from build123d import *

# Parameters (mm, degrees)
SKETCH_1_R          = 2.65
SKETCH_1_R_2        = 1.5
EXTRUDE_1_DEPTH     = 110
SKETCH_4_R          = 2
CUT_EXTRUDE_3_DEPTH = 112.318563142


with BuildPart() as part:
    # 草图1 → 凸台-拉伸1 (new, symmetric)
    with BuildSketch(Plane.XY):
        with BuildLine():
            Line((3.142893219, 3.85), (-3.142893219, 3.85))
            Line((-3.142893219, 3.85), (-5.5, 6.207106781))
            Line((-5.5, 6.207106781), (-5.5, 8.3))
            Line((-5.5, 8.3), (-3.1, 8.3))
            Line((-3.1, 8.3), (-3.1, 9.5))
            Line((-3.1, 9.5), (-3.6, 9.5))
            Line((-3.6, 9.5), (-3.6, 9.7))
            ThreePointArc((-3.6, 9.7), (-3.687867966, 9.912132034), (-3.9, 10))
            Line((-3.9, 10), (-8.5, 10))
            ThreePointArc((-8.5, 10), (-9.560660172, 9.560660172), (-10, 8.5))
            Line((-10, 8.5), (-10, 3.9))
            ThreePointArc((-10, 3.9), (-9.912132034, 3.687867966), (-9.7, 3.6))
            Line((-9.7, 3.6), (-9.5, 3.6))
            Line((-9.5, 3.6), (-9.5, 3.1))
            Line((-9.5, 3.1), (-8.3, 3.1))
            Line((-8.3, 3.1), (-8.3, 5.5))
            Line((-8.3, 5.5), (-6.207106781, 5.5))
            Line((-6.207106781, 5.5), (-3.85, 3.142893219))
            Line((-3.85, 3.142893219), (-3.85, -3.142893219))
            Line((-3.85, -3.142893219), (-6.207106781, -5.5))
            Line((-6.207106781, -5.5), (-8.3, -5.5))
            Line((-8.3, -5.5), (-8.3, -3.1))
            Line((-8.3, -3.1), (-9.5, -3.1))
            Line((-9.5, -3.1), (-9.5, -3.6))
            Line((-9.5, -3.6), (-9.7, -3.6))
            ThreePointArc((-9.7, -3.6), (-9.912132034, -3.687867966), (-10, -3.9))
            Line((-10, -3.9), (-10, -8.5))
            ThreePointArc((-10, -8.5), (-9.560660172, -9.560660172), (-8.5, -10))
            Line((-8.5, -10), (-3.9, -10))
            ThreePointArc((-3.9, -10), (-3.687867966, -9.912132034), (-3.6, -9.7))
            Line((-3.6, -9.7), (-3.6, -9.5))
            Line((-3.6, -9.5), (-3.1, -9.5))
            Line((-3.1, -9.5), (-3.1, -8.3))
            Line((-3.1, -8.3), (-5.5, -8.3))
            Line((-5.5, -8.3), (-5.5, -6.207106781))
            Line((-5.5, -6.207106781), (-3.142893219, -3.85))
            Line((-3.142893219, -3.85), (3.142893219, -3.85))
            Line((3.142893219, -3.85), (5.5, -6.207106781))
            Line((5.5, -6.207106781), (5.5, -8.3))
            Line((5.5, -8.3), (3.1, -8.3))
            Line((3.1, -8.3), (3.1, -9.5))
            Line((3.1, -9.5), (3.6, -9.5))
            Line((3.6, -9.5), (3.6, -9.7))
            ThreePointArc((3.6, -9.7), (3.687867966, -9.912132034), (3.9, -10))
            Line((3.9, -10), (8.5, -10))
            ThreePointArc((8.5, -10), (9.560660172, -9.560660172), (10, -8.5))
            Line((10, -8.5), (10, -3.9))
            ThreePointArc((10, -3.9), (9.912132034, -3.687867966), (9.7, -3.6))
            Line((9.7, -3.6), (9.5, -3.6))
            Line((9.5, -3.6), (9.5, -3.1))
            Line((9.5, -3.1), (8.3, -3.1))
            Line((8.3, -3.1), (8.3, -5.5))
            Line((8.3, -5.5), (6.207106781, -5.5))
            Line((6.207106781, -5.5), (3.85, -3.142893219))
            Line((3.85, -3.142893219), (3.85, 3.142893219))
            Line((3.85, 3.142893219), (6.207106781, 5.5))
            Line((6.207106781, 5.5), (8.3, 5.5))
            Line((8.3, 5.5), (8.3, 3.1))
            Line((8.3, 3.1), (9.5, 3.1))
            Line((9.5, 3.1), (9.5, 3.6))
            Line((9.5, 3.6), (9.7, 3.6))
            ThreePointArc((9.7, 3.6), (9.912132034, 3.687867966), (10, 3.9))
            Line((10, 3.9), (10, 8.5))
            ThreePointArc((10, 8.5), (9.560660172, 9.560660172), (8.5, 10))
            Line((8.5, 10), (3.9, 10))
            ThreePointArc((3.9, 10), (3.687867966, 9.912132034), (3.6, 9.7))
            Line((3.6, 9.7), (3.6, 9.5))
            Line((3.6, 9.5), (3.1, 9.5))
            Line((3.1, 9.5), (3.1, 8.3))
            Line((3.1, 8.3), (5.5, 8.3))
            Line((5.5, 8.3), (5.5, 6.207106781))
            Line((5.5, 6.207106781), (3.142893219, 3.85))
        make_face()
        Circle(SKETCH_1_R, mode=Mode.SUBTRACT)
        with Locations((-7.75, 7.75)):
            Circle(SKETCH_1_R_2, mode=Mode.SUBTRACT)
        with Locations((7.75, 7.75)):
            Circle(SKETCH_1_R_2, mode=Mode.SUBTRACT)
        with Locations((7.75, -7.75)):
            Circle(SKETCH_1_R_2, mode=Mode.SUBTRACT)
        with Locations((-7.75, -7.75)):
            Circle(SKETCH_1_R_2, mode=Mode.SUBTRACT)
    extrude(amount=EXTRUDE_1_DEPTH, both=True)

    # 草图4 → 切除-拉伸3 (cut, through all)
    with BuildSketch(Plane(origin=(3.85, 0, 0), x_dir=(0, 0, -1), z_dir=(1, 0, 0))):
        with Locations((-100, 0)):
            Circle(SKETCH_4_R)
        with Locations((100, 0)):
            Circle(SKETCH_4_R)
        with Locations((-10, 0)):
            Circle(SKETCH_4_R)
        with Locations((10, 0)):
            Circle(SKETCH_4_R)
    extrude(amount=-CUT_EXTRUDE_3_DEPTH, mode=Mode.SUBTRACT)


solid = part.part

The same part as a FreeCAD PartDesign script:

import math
import FreeCAD as App
import Part
import Sketcher
Q = App.Units.Quantity

doc = App.newDocument("Part")
body = doc.addObject("PartDesign::Body", "Body")

# Sketch on XY plane
sketch1 = body.newObject("Sketcher::SketchObject", "Sketch")
sketch1.AttachmentSupport = (doc.getObject("XY_Plane"), [""])
sketch1.MapMode = "FlatFace"
sketch1.addGeometry([
    Part.LineSegment(App.Vector(3.14, 3.85, 0), App.Vector(-3.14, 3.85, 0)),  # 0
    Part.LineSegment(App.Vector(-3.14, 3.85, 0), App.Vector(-5.5, 6.21, 0)),  # 1
    Part.LineSegment(App.Vector(-5.5, 6.21, 0), App.Vector(-5.5, 8.3, 0)),  # 2
    Part.LineSegment(App.Vector(-5.5, 8.3, 0), App.Vector(-3.1, 8.3, 0)),  # 3
    Part.LineSegment(App.Vector(-3.1, 8.3, 0), App.Vector(-3.1, 9.5, 0)),  # 4
    Part.LineSegment(App.Vector(-3.1, 9.5, 0), App.Vector(-3.6, 9.5, 0)),  # 5
    Part.LineSegment(App.Vector(-3.6, 9.5, 0), App.Vector(-3.6, 9.7, 0)),  # 6
    Part.ArcOfCircle(Part.Circle(App.Vector(-3.9, 9.7, 0), App.Vector(0, 0, 1), 0.3), math.radians(0), math.radians(90)),  # 7
    Part.LineSegment(App.Vector(-3.9, 10, 0), App.Vector(-8.5, 10, 0)),  # 8
    Part.ArcOfCircle(Part.Circle(App.Vector(-8.5, 8.5, 0), App.Vector(0, 0, 1), 1.5), math.radians(90), math.radians(180)),  # 9
    Part.LineSegment(App.Vector(-10, 8.5, 0), App.Vector(-10, 3.9, 0)),  # 10
    Part.ArcOfCircle(Part.Circle(App.Vector(-9.7, 3.9, 0), App.Vector(0, 0, 1), 0.3), math.radians(-180), math.radians(-90)),  # 11
    Part.LineSegment(App.Vector(-9.7, 3.6, 0), App.Vector(-9.5, 3.6, 0)),  # 12
    Part.LineSegment(App.Vector(-9.5, 3.6, 0), App.Vector(-9.5, 3.1, 0)),  # 13
    Part.LineSegment(App.Vector(-9.5, 3.1, 0), App.Vector(-8.3, 3.1, 0)),  # 14
    Part.LineSegment(App.Vector(-8.3, 3.1, 0), App.Vector(-8.3, 5.5, 0)),  # 15
    Part.LineSegment(App.Vector(-8.3, 5.5, 0), App.Vector(-6.21, 5.5, 0)),  # 16
    Part.LineSegment(App.Vector(-6.21, 5.5, 0), App.Vector(-3.85, 3.14, 0)),  # 17
    Part.LineSegment(App.Vector(-3.85, 3.14, 0), App.Vector(-3.85, -3.14, 0)),  # 18
    Part.LineSegment(App.Vector(-3.85, -3.14, 0), App.Vector(-6.21, -5.5, 0)),  # 19
    Part.LineSegment(App.Vector(-6.21, -5.5, 0), App.Vector(-8.3, -5.5, 0)),  # 20
    Part.LineSegment(App.Vector(-8.3, -5.5, 0), App.Vector(-8.3, -3.1, 0)),  # 21
    Part.LineSegment(App.Vector(-8.3, -3.1, 0), App.Vector(-9.5, -3.1, 0)),  # 22
    Part.LineSegment(App.Vector(-9.5, -3.1, 0), App.Vector(-9.5, -3.6, 0)),  # 23
    Part.LineSegment(App.Vector(-9.5, -3.6, 0), App.Vector(-9.7, -3.6, 0)),  # 24
    Part.ArcOfCircle(Part.Circle(App.Vector(-9.7, -3.9, 0), App.Vector(0, 0, 1), 0.3), math.radians(90), math.radians(180)),  # 25
    Part.LineSegment(App.Vector(-10, -3.9, 0), App.Vector(-10, -8.5, 0)),  # 26
    Part.ArcOfCircle(Part.Circle(App.Vector(-8.5, -8.5, 0), App.Vector(0, 0, 1), 1.5), math.radians(180), math.radians(270)),  # 27
    Part.LineSegment(App.Vector(-8.5, -10, 0), App.Vector(-3.9, -10, 0)),  # 28
    Part.ArcOfCircle(Part.Circle(App.Vector(-3.9, -9.7, 0), App.Vector(0, 0, 1), 0.3), math.radians(-90), math.radians(0)),  # 29
    Part.LineSegment(App.Vector(-3.6, -9.7, 0), App.Vector(-3.6, -9.5, 0)),  # 30
    Part.LineSegment(App.Vector(-3.6, -9.5, 0), App.Vector(-3.1, -9.5, 0)),  # 31
    Part.LineSegment(App.Vector(-3.1, -9.5, 0), App.Vector(-3.1, -8.3, 0)),  # 32
    Part.LineSegment(App.Vector(-3.1, -8.3, 0), App.Vector(-5.5, -8.3, 0)),  # 33
    Part.LineSegment(App.Vector(-5.5, -8.3, 0), App.Vector(-5.5, -6.21, 0)),  # 34
    Part.LineSegment(App.Vector(-5.5, -6.21, 0), App.Vector(-3.14, -3.85, 0)),  # 35
    Part.LineSegment(App.Vector(-3.14, -3.85, 0), App.Vector(3.14, -3.85, 0)),  # 36
    Part.LineSegment(App.Vector(3.14, -3.85, 0), App.Vector(5.5, -6.21, 0)),  # 37
    Part.LineSegment(App.Vector(5.5, -6.21, 0), App.Vector(5.5, -8.3, 0)),  # 38
    Part.LineSegment(App.Vector(5.5, -8.3, 0), App.Vector(3.1, -8.3, 0)),  # 39
    Part.LineSegment(App.Vector(3.1, -8.3, 0), App.Vector(3.1, -9.5, 0)),  # 40
    Part.LineSegment(App.Vector(3.1, -9.5, 0), App.Vector(3.6, -9.5, 0)),  # 41
    Part.LineSegment(App.Vector(3.6, -9.5, 0), App.Vector(3.6, -9.7, 0)),  # 42
    Part.ArcOfCircle(Part.Circle(App.Vector(3.9, -9.7, 0), App.Vector(0, 0, 1), 0.3), math.radians(-180), math.radians(-90)),  # 43
    Part.LineSegment(App.Vector(3.9, -10, 0), App.Vector(8.5, -10, 0)),  # 44
    Part.ArcOfCircle(Part.Circle(App.Vector(8.5, -8.5, 0), App.Vector(0, 0, 1), 1.5), math.radians(-90), math.radians(0)),  # 45
    Part.LineSegment(App.Vector(10, -8.5, 0), App.Vector(10, -3.9, 0)),  # 46
    Part.ArcOfCircle(Part.Circle(App.Vector(9.7, -3.9, 0), App.Vector(0, 0, 1), 0.3), math.radians(0), math.radians(90)),  # 47
    Part.LineSegment(App.Vector(9.7, -3.6, 0), App.Vector(9.5, -3.6, 0)),  # 48
    Part.LineSegment(App.Vector(9.5, -3.6, 0), App.Vector(9.5, -3.1, 0)),  # 49
    Part.LineSegment(App.Vector(9.5, -3.1, 0), App.Vector(8.3, -3.1, 0)),  # 50
    Part.LineSegment(App.Vector(8.3, -3.1, 0), App.Vector(8.3, -5.5, 0)),  # 51
    Part.LineSegment(App.Vector(8.3, -5.5, 0), App.Vector(6.21, -5.5, 0)),  # 52
    Part.LineSegment(App.Vector(6.21, -5.5, 0), App.Vector(3.85, -3.14, 0)),  # 53
    Part.LineSegment(App.Vector(3.85, -3.14, 0), App.Vector(3.85, 3.14, 0)),  # 54
    Part.LineSegment(App.Vector(3.85, 3.14, 0), App.Vector(6.21, 5.5, 0)),  # 55
    Part.LineSegment(App.Vector(6.21, 5.5, 0), App.Vector(8.3, 5.5, 0)),  # 56
    Part.LineSegment(App.Vector(8.3, 5.5, 0), App.Vector(8.3, 3.1, 0)),  # 57
    Part.LineSegment(App.Vector(8.3, 3.1, 0), App.Vector(9.5, 3.1, 0)),  # 58
    Part.LineSegment(App.Vector(9.5, 3.1, 0), App.Vector(9.5, 3.6, 0)),  # 59
    Part.LineSegment(App.Vector(9.5, 3.6, 0), App.Vector(9.7, 3.6, 0)),  # 60
    Part.ArcOfCircle(Part.Circle(App.Vector(9.7, 3.9, 0), App.Vector(0, 0, 1), 0.3), math.radians(-90), math.radians(0)),  # 61
    Part.LineSegment(App.Vector(10, 3.9, 0), App.Vector(10, 8.5, 0)),  # 62
    Part.ArcOfCircle(Part.Circle(App.Vector(8.5, 8.5, 0), App.Vector(0, 0, 1), 1.5), math.radians(0), math.radians(90)),  # 63
    Part.LineSegment(App.Vector(8.5, 10, 0), App.Vector(3.9, 10, 0)),  # 64
    Part.ArcOfCircle(Part.Circle(App.Vector(3.9, 9.7, 0), App.Vector(0, 0, 1), 0.3), math.radians(90), math.radians(180)),  # 65
    Part.LineSegment(App.Vector(3.6, 9.7, 0), App.Vector(3.6, 9.5, 0)),  # 66
    Part.LineSegment(App.Vector(3.6, 9.5, 0), App.Vector(3.1, 9.5, 0)),  # 67
    Part.LineSegment(App.Vector(3.1, 9.5, 0), App.Vector(3.1, 8.3, 0)),  # 68
    Part.LineSegment(App.Vector(3.1, 8.3, 0), App.Vector(5.5, 8.3, 0)),  # 69
    Part.LineSegment(App.Vector(5.5, 8.3, 0), App.Vector(5.5, 6.21, 0)),  # 70
    Part.LineSegment(App.Vector(5.5, 6.21, 0), App.Vector(3.14, 3.85, 0)),  # 71
    Part.Circle(App.Vector(-7.75, -7.75, 0), App.Vector(0, 0, 1), 1.5),  # 72
    Part.Circle(App.Vector(7.75, -7.75, 0), App.Vector(0, 0, 1), 1.5),  # 73
    Part.Circle(App.Vector(-7.75, 7.75, 0), App.Vector(0, 0, 1), 1.5),  # 74
    Part.Circle(App.Vector(0, 0, 0), App.Vector(0, 0, 1), 2.65),  # 75
    Part.Circle(App.Vector(7.75, 7.75, 0), App.Vector(0, 0, 1), 1.5),  # 76
], False)
sketch1.addConstraint([
    Sketcher.Constraint("Coincident", 0, 2, 1, 1),
    Sketcher.Constraint("Coincident", 1, 2, 2, 1),
    Sketcher.Constraint("Coincident", 2, 2, 3, 1),
    Sketcher.Constraint("Coincident", 3, 2, 4, 1),
    Sketcher.Constraint("Coincident", 4, 2, 5, 1),
    Sketcher.Constraint("Coincident", 5, 2, 6, 1),
    Sketcher.Constraint("Tangent", 6, 2, 7, 1),
    Sketcher.Constraint("Tangent", 7, 2, 8, 1),
    Sketcher.Constraint("Tangent", 8, 2, 9, 1),
    Sketcher.Constraint("Tangent", 9, 2, 10, 1),
    Sketcher.Constraint("Tangent", 10, 2, 11, 1),
    Sketcher.Constraint("Tangent", 11, 2, 12, 1),
    Sketcher.Constraint("Coincident", 12, 2, 13, 1),
    Sketcher.Constraint("Coincident", 13, 2, 14, 1),
    Sketcher.Constraint("Coincident", 14, 2, 15, 1),
    Sketcher.Constraint("Coincident", 15, 2, 16, 1),
    Sketcher.Constraint("Coincident", 16, 2, 17, 1),
    Sketcher.Constraint("Coincident", 17, 2, 18, 1),
    Sketcher.Constraint("Coincident", 18, 2, 19, 1),
    Sketcher.Constraint("Coincident", 19, 2, 20, 1),
    Sketcher.Constraint("Coincident", 20, 2, 21, 1),
    Sketcher.Constraint("Coincident", 21, 2, 22, 1),
    Sketcher.Constraint("Coincident", 22, 2, 23, 1),
    Sketcher.Constraint("Coincident", 23, 2, 24, 1),
    Sketcher.Constraint("Tangent", 24, 2, 25, 1),
    Sketcher.Constraint("Tangent", 25, 2, 26, 1),
    Sketcher.Constraint("Tangent", 26, 2, 27, 1),
    Sketcher.Constraint("Tangent", 27, 2, 28, 1),
    Sketcher.Constraint("Tangent", 28, 2, 29, 1),
    Sketcher.Constraint("Tangent", 29, 2, 30, 1),
    Sketcher.Constraint("Coincident", 30, 2, 31, 1),
    Sketcher.Constraint("Coincident", 31, 2, 32, 1),
    Sketcher.Constraint("Coincident", 32, 2, 33, 1),
    Sketcher.Constraint("Coincident", 33, 2, 34, 1),
    Sketcher.Constraint("Coincident", 34, 2, 35, 1),
    Sketcher.Constraint("Coincident", 35, 2, 36, 1),
    Sketcher.Constraint("Coincident", 36, 2, 37, 1),
    Sketcher.Constraint("Coincident", 37, 2, 38, 1),
    Sketcher.Constraint("Coincident", 38, 2, 39, 1),
    Sketcher.Constraint("Coincident", 39, 2, 40, 1),
    Sketcher.Constraint("Coincident", 40, 2, 41, 1),
    Sketcher.Constraint("Coincident", 41, 2, 42, 1),
    Sketcher.Constraint("Tangent", 42, 2, 43, 1),
    Sketcher.Constraint("Tangent", 43, 2, 44, 1),
    Sketcher.Constraint("Tangent", 44, 2, 45, 1),
    Sketcher.Constraint("Tangent", 45, 2, 46, 1),
    Sketcher.Constraint("Tangent", 46, 2, 47, 1),
    Sketcher.Constraint("Tangent", 47, 2, 48, 1),
    Sketcher.Constraint("Coincident", 48, 2, 49, 1),
    Sketcher.Constraint("Coincident", 49, 2, 50, 1),
    Sketcher.Constraint("Coincident", 50, 2, 51, 1),
    Sketcher.Constraint("Coincident", 51, 2, 52, 1),
    Sketcher.Constraint("Coincident", 52, 2, 53, 1),
    Sketcher.Constraint("Coincident", 53, 2, 54, 1),
    Sketcher.Constraint("Coincident", 54, 2, 55, 1),
    Sketcher.Constraint("Coincident", 55, 2, 56, 1),
    Sketcher.Constraint("Coincident", 56, 2, 57, 1),
    Sketcher.Constraint("Coincident", 57, 2, 58, 1),
    Sketcher.Constraint("Coincident", 58, 2, 59, 1),
    Sketcher.Constraint("Coincident", 59, 2, 60, 1),
    Sketcher.Constraint("Tangent", 60, 2, 61, 1),
    Sketcher.Constraint("Tangent", 61, 2, 62, 1),
    Sketcher.Constraint("Tangent", 62, 2, 63, 1),
    Sketcher.Constraint("Tangent", 63, 2, 64, 1),
    Sketcher.Constraint("Tangent", 64, 2, 65, 1),
    Sketcher.Constraint("Tangent", 65, 2, 66, 1),
    Sketcher.Constraint("Coincident", 66, 2, 67, 1),
    Sketcher.Constraint("Coincident", 67, 2, 68, 1),
    Sketcher.Constraint("Coincident", 68, 2, 69, 1),
    Sketcher.Constraint("Coincident", 69, 2, 70, 1),
    Sketcher.Constraint("Coincident", 70, 2, 71, 1),
    Sketcher.Constraint("Coincident", 71, 2, 0, 1),
    Sketcher.Constraint("Horizontal", 0),
    Sketcher.Constraint("Vertical", 2),
    Sketcher.Constraint("Horizontal", 3),
    Sketcher.Constraint("Vertical", 4),
    Sketcher.Constraint("Horizontal", 5),
    Sketcher.Constraint("Vertical", 6),
    Sketcher.Constraint("Horizontal", 8),
    Sketcher.Constraint("Vertical", 10),
    Sketcher.Constraint("Horizontal", 12),
    Sketcher.Constraint("Vertical", 13),
    Sketcher.Constraint("Horizontal", 14),
    Sketcher.Constraint("Vertical", 15),
    Sketcher.Constraint("Horizontal", 16),
    Sketcher.Constraint("Vertical", 18),
    Sketcher.Constraint("Horizontal", 20),
    Sketcher.Constraint("Vertical", 21),
    Sketcher.Constraint("Horizontal", 22),
    Sketcher.Constraint("Vertical", 23),
    Sketcher.Constraint("Horizontal", 24),
    Sketcher.Constraint("Vertical", 26),
    Sketcher.Constraint("Horizontal", 28),
    Sketcher.Constraint("Vertical", 30),
    Sketcher.Constraint("Horizontal", 31),
    Sketcher.Constraint("Vertical", 32),
    Sketcher.Constraint("Horizontal", 33),
    Sketcher.Constraint("Vertical", 34),
    Sketcher.Constraint("Horizontal", 36),
    Sketcher.Constraint("Vertical", 38),
    Sketcher.Constraint("Horizontal", 39),
    Sketcher.Constraint("Vertical", 40),
    Sketcher.Constraint("Horizontal", 41),
    Sketcher.Constraint("Vertical", 42),
    Sketcher.Constraint("Horizontal", 44),
    Sketcher.Constraint("Vertical", 46),
    Sketcher.Constraint("Horizontal", 48),
    Sketcher.Constraint("Vertical", 49),
    Sketcher.Constraint("Horizontal", 50),
    Sketcher.Constraint("Vertical", 51),
    Sketcher.Constraint("Horizontal", 52),
    Sketcher.Constraint("Vertical", 54),
    Sketcher.Constraint("Horizontal", 56),
    Sketcher.Constraint("Vertical", 57),
    Sketcher.Constraint("Horizontal", 58),
    Sketcher.Constraint("Vertical", 59),
    Sketcher.Constraint("Horizontal", 60),
    Sketcher.Constraint("Vertical", 62),
    Sketcher.Constraint("Horizontal", 64),
    Sketcher.Constraint("Vertical", 66),
    Sketcher.Constraint("Horizontal", 67),
    Sketcher.Constraint("Vertical", 68),
    Sketcher.Constraint("Horizontal", 69),
    Sketcher.Constraint("Vertical", 70),
    Sketcher.Constraint("Coincident", 75, 3, -1, 1),
    Sketcher.Constraint("Equal", 7, 11),
    Sketcher.Constraint("Equal", 11, 25),
    Sketcher.Constraint("Equal", 9, 27),
    Sketcher.Constraint("Equal", 25, 29),
    Sketcher.Constraint("Equal", 29, 43),
    Sketcher.Constraint("Equal", 27, 45),
    Sketcher.Constraint("Equal", 43, 47),
    Sketcher.Constraint("Equal", 47, 61),
    Sketcher.Constraint("Equal", 45, 63),
    Sketcher.Constraint("Equal", 61, 65),
    Sketcher.Constraint("Equal", 63, 72),
    Sketcher.Constraint("Equal", 72, 73),
    Sketcher.Constraint("Equal", 73, 74),
    Sketcher.Constraint("Equal", 74, 76),
    Sketcher.Constraint("Symmetric", 7, 3, 43, 3, -1, 1),
    Sketcher.Constraint("Symmetric", 11, 3, 47, 3, -1, 1),
    Sketcher.Constraint("Symmetric", 25, 3, 61, 3, -1, 1),
    Sketcher.Constraint("Symmetric", 29, 3, 65, 3, -1, 1),
    Sketcher.Constraint("Symmetric", 73, 3, 74, 3, -1, 1),
    Sketcher.Constraint("Symmetric", 72, 3, 76, 3, -1, 1),
    Sketcher.Constraint("Symmetric", 0, 2, 36, 2, -1, 1),
    Sketcher.Constraint("Symmetric", 1, 2, 37, 2, -1, 1),
    Sketcher.Constraint("Symmetric", 3, 2, 39, 2, -1, 1),
    Sketcher.Constraint("Symmetric", 13, 2, 49, 2, -1, 1),
    Sketcher.Constraint("Symmetric", 15, 2, 51, 2, -1, 1),
    Sketcher.Constraint("Symmetric", 17, 2, 53, 2, -1, 1),
    Sketcher.Constraint("Symmetric", 19, 2, 55, 2, -1, 1),
    Sketcher.Constraint("Symmetric", 21, 2, 57, 2, -1, 1),
    Sketcher.Constraint("Symmetric", 31, 2, 67, 2, -1, 1),
    Sketcher.Constraint("Symmetric", 33, 2, 69, 2, -1, 1),
    Sketcher.Constraint("Symmetric", 29, 3, 43, 3, -2),
    Sketcher.Constraint("Symmetric", 25, 3, 47, 3, -2),
    Sketcher.Constraint("Symmetric", 72, 3, 73, 3, -2),
    Sketcher.Constraint("Symmetric", 34, 2, 37, 2, -2),
    Sketcher.Constraint("Symmetric", 32, 2, 39, 2, -2),
    Sketcher.Constraint("Symmetric", 22, 2, 49, 2, -2),
    Sketcher.Constraint("Symmetric", 20, 2, 51, 2, -2),
    Sketcher.Constraint("Parallel", 1, 17),
    Sketcher.Constraint("Perpendicular", 17, 19),
    Sketcher.Constraint("Parallel", 19, 35),
    Sketcher.Constraint("Parallel", 37, 53),
    Sketcher.Constraint("Perpendicular", 53, 55),
    Sketcher.Constraint("Parallel", 55, 71),
    Sketcher.Constraint("Horizontal", 31, 2, 40, 2),
    Sketcher.Constraint("Horizontal", 18, 2, 53, 2),
    Sketcher.Constraint("Horizontal", 5, 2, 66, 2),
    Sketcher.Constraint("Horizontal", 1, 2, 70, 2),
    Sketcher.Constraint("Vertical", 16, 2, 19, 2),
    Sketcher.Constraint("Vertical", 49, 2, 58, 2),
    Sketcher.Constraint("Equal", 56, 2),
    Sketcher.Constraint("Equal", 58, 4),
    Sketcher.Constraint("Equal", 60, 6),
    Sketcher.Constraint("Equal", 64, 10),
    Sketcher.Constraint("Equal", 67, 13),
    Sketcher.Constraint("Equal", 69, 15),
    Sketcher.Constraint("Equal", 36, 18),
    Sketcher.Constraint("Equal", 1, 17),
    Sketcher.Constraint("Diameter", 72, Q("3 mm")),
    Sketcher.Constraint("Diameter", 75, Q("5.3 mm")),
    Sketcher.Constraint("Radius", 7, Q("0.3 mm")),
    Sketcher.Constraint("DistanceX", 3, 1, 3, 2, Q("2.4 mm")),
    Sketcher.Constraint("DistanceX", 5, 2, 5, 1, Q("0.5 mm")),
    Sketcher.Constraint("DistanceX", 8, 2, 8, 1, Q("4.6 mm")),
    Sketcher.Constraint("DistanceX", 12, 1, 12, 2, Q("0.2 mm")),
    Sketcher.Constraint("DistanceX", 14, 1, 14, 2, Q("1.2 mm")),
    Sketcher.Constraint("DistanceY", -1, 1, 7, 2, Q("10 mm")),
    Sketcher.Constraint("DistanceX", 72, 3, -1, 1, Q("7.75 mm")),
    Sketcher.Constraint("DistanceY", 72, 3, -1, 1, Q("7.75 mm")),
    Sketcher.Constraint("DistanceY", -1, 1, 0, 2, Q("3.85 mm")),
    Sketcher.Constraint("DistanceX", 0, 2, 0, 1, Q("6.285786 mm")),
])
pad1 = body.newObject("PartDesign::Pad", "Pad")
pad1.Profile = sketch1
pad1.Length = 220
pad1.Midplane = True

# Sketch on YZ plane
sketch2 = body.newObject("Sketcher::SketchObject", "Sketch001")
sketch2.AttachmentSupport = (doc.getObject("YZ_Plane"), [""])
sketch2.MapMode = "FlatFace"
sketch2.AttachmentOffset = App.Placement(App.Vector(0, 0, 3.85), App.Rotation())
sketch2.addGeometry([
    Part.Circle(App.Vector(0, 100, 0), App.Vector(0, 0, 1), 2),
    Part.Circle(App.Vector(0, -100, 0), App.Vector(0, 0, 1), 2),
    Part.Circle(App.Vector(0, 10, 0), App.Vector(0, 0, 1), 2),
    Part.Circle(App.Vector(0, -10, 0), App.Vector(0, 0, 1), 2),
], False)
sketch2.addConstraint([
    Sketcher.Constraint("Equal", 0, 1),
    Sketcher.Constraint("Equal", 1, 2),
    Sketcher.Constraint("Equal", 2, 3),
    Sketcher.Constraint("Symmetric", 0, 3, 1, 3, -1, 1),
    Sketcher.Constraint("Symmetric", 2, 3, 3, 3, -1, 1),
    Sketcher.Constraint("PointOnObject", 0, 3, -2),
    Sketcher.Constraint("PointOnObject", 2, 3, -2),
    Sketcher.Constraint("Diameter", 0, Q("4 mm")),
    Sketcher.Constraint("DistanceY", -1, 1, 0, 3, Q("100 mm")),
    Sketcher.Constraint("DistanceY", -1, 1, 2, 3, Q("10 mm")),
])
pocket1 = body.newObject("PartDesign::Pocket", "Pocket")
pocket1.Profile = sketch2
pocket1.Type = "ThroughAll"

doc.recompute()
